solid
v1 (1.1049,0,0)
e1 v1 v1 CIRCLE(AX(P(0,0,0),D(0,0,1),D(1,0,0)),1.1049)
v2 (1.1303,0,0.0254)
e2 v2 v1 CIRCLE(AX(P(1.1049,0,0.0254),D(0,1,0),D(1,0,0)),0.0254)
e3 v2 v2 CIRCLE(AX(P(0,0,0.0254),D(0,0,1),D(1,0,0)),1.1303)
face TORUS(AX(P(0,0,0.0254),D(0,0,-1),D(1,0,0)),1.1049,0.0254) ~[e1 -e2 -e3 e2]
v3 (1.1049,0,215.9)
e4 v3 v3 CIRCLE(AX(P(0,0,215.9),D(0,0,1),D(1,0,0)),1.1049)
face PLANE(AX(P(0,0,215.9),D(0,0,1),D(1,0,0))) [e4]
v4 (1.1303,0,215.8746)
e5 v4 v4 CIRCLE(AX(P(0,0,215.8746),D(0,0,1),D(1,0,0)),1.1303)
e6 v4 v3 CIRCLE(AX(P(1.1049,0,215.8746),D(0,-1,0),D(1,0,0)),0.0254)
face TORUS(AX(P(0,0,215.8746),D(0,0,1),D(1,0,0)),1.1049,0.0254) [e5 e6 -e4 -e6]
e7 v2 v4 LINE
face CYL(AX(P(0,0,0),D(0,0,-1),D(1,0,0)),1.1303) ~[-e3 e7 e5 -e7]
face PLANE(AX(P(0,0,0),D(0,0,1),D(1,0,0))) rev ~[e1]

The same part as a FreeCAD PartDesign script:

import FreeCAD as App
import Part
import Sketcher

V = App.Vector
Q = App.Units.Quantity


def edges_at(feature, points):
    """Names of the edges that pass closest to the given points."""
    edges = feature.Shape.Edges
    near = lambda p: min(range(len(edges)), key=lambda i: edges[i].distToShape(Part.Vertex(*p))[0])
    return sorted({f"Edge{near(p) + 1}" for p in points})

doc = App.newDocument("Part")
body = doc.addObject("PartDesign::Body", "Body")

# Sketch on XY plane
sketch1 = body.newObject("Sketcher::SketchObject", "Sketch")
sketch1.AttachmentSupport = (doc.getObject("XY_Plane"), [""])
sketch1.MapMode = "FlatFace"
sketch1.addGeometry(Part.Circle(V(0, 0, 0), V(0, 0, 1), 1.1), False)
sketch1.addConstraint(Sketcher.Constraint("Coincident", 0, 3, -1, 1))
sketch1.addConstraint(Sketcher.Constraint("Diameter", 0, Q("0.089 in")))
pad1 = body.newObject("PartDesign::Pad", "Pad")
pad1.Profile = sketch1
pad1.Length = Q("8.5 in")
doc.recompute()

fillet = body.newObject("PartDesign::Fillet", "Fillet")
fillet.Base = (pad1, edges_at(pad1, [(-1.13, 0, 215.9), (-1.13, 0, 0)]))
fillet.Radius = Q("0.001 in")

doc.recompute()
